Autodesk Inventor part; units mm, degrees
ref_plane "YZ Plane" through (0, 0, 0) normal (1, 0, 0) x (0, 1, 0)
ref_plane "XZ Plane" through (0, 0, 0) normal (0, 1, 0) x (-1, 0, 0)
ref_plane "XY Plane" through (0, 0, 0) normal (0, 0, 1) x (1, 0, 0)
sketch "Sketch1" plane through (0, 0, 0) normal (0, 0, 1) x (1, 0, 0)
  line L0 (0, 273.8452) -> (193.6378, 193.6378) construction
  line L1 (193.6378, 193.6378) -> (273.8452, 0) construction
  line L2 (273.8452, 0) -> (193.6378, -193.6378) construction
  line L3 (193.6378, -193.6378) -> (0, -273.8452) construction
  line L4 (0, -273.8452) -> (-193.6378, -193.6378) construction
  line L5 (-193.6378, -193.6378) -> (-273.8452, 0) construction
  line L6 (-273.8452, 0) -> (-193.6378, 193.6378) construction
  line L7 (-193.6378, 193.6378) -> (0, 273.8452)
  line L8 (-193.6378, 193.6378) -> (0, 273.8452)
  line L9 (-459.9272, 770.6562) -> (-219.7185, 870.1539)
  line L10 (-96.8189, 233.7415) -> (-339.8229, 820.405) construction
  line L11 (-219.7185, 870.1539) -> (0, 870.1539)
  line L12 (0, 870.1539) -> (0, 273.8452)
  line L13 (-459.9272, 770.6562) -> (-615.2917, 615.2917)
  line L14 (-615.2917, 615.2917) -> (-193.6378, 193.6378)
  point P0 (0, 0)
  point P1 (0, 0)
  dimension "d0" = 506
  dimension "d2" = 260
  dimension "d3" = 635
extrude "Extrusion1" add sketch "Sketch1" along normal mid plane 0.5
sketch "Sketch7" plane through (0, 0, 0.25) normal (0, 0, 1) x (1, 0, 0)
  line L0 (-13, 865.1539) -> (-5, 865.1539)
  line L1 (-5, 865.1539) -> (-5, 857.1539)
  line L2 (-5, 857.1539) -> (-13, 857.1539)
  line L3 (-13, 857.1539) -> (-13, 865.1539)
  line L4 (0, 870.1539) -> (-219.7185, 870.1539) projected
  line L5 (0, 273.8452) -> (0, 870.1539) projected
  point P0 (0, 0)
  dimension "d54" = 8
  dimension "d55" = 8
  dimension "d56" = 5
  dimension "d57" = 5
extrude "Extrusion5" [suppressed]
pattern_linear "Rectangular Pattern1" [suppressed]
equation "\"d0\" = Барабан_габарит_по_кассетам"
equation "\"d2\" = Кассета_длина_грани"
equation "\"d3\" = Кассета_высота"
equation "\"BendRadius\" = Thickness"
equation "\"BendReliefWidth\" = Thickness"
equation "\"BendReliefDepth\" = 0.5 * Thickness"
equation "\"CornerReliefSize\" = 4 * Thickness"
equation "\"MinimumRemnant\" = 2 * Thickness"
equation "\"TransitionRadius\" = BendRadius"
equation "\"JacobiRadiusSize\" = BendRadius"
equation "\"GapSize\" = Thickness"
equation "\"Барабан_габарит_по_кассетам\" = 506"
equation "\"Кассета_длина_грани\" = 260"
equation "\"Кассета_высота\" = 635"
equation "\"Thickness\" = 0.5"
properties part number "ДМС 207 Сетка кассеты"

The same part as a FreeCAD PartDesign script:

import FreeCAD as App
import Part
import Sketcher
Q = App.Units.Quantity

doc = App.newDocument("Part")
body = doc.addObject("PartDesign::Body", "Body")

# Sketch on XY plane
sketch1 = body.newObject("Sketcher::SketchObject", "Sketch")
sketch1.AttachmentSupport = (doc.getObject("XY_Plane"), [""])
sketch1.MapMode = "FlatFace"
sketch1.addGeometry(Part.LineSegment(App.Vector(-615.2917, 615.2917, 0), App.Vector(-193.6378, 193.6378, 0)), False)
sketch1.addGeometry(Part.LineSegment(App.Vector(-193.6378, 193.6378, 0), App.Vector(0, 273.8452, 0)), False)
sketch1.addGeometry(Part.LineSegment(App.Vector(0, 273.8452, 0), App.Vector(0, 870.1539, 0)), False)
sketch1.addGeometry(Part.LineSegment(App.Vector(0, 870.1539, 0), App.Vector(-219.7185, 870.1539, 0)), False)
sketch1.addGeometry(Part.LineSegment(App.Vector(-219.7185, 870.1539, 0), App.Vector(-459.9272, 770.6562, 0)), False)
sketch1.addGeometry(Part.LineSegment(App.Vector(-459.9272, 770.6562, 0), App.Vector(-615.2917, 615.2917, 0)), False)
sketch1.addConstraint(Sketcher.Constraint("Coincident", 0, 2, 1, 1))
sketch1.addConstraint(Sketcher.Constraint("Coincident", 1, 2, 2, 1))
sketch1.addConstraint(Sketcher.Constraint("Coincident", 2, 2, 3, 1))
sketch1.addConstraint(Sketcher.Constraint("Coincident", 3, 2, 4, 1))
sketch1.addConstraint(Sketcher.Constraint("Coincident", 4, 2, 5, 1))
sketch1.addConstraint(Sketcher.Constraint("Coincident", 5, 2, 0, 1))
sketch1.addConstraint(Sketcher.Constraint("Vertical", 2))
sketch1.addConstraint(Sketcher.Constraint("Horizontal", 3))
sketch1.addConstraint(Sketcher.Constraint("PointOnObject", 1, 2, -2))
sketch1.addConstraint(Sketcher.Constraint("Parallel", 1, 4))
sketch1.addConstraint(Sketcher.Constraint("Perpendicular", 0, 5))
sketch1.addConstraint(Sketcher.Constraint("Distance", 4, Q("260 mm")))
sketch1.addConstraint(Sketcher.Constraint("Angle", 0, Q("-45 deg")))
sketch1.addConstraint(Sketcher.Constraint("Angle", 1, Q("22.5 deg")))
sketch1.addConstraint(Sketcher.Constraint("Distance", 1, Q("209.592 mm")))
sketch1.addConstraint(Sketcher.Constraint("DistanceX", 3, 2, 3, 1, Q("219.7185 mm")))
sketch1.addConstraint(Sketcher.Constraint("DistanceY", 2, 1, 2, 2, Q("596.3087 mm")))
sketch1.addConstraint(Sketcher.Constraint("DistanceY", -1, 1, 2, 2, Q("870.154 mm")))
pad1 = body.newObject("PartDesign::Pad", "Pad")
pad1.Profile = sketch1
pad1.Length = 0.5
pad1.Midplane = True

doc.recompute()
